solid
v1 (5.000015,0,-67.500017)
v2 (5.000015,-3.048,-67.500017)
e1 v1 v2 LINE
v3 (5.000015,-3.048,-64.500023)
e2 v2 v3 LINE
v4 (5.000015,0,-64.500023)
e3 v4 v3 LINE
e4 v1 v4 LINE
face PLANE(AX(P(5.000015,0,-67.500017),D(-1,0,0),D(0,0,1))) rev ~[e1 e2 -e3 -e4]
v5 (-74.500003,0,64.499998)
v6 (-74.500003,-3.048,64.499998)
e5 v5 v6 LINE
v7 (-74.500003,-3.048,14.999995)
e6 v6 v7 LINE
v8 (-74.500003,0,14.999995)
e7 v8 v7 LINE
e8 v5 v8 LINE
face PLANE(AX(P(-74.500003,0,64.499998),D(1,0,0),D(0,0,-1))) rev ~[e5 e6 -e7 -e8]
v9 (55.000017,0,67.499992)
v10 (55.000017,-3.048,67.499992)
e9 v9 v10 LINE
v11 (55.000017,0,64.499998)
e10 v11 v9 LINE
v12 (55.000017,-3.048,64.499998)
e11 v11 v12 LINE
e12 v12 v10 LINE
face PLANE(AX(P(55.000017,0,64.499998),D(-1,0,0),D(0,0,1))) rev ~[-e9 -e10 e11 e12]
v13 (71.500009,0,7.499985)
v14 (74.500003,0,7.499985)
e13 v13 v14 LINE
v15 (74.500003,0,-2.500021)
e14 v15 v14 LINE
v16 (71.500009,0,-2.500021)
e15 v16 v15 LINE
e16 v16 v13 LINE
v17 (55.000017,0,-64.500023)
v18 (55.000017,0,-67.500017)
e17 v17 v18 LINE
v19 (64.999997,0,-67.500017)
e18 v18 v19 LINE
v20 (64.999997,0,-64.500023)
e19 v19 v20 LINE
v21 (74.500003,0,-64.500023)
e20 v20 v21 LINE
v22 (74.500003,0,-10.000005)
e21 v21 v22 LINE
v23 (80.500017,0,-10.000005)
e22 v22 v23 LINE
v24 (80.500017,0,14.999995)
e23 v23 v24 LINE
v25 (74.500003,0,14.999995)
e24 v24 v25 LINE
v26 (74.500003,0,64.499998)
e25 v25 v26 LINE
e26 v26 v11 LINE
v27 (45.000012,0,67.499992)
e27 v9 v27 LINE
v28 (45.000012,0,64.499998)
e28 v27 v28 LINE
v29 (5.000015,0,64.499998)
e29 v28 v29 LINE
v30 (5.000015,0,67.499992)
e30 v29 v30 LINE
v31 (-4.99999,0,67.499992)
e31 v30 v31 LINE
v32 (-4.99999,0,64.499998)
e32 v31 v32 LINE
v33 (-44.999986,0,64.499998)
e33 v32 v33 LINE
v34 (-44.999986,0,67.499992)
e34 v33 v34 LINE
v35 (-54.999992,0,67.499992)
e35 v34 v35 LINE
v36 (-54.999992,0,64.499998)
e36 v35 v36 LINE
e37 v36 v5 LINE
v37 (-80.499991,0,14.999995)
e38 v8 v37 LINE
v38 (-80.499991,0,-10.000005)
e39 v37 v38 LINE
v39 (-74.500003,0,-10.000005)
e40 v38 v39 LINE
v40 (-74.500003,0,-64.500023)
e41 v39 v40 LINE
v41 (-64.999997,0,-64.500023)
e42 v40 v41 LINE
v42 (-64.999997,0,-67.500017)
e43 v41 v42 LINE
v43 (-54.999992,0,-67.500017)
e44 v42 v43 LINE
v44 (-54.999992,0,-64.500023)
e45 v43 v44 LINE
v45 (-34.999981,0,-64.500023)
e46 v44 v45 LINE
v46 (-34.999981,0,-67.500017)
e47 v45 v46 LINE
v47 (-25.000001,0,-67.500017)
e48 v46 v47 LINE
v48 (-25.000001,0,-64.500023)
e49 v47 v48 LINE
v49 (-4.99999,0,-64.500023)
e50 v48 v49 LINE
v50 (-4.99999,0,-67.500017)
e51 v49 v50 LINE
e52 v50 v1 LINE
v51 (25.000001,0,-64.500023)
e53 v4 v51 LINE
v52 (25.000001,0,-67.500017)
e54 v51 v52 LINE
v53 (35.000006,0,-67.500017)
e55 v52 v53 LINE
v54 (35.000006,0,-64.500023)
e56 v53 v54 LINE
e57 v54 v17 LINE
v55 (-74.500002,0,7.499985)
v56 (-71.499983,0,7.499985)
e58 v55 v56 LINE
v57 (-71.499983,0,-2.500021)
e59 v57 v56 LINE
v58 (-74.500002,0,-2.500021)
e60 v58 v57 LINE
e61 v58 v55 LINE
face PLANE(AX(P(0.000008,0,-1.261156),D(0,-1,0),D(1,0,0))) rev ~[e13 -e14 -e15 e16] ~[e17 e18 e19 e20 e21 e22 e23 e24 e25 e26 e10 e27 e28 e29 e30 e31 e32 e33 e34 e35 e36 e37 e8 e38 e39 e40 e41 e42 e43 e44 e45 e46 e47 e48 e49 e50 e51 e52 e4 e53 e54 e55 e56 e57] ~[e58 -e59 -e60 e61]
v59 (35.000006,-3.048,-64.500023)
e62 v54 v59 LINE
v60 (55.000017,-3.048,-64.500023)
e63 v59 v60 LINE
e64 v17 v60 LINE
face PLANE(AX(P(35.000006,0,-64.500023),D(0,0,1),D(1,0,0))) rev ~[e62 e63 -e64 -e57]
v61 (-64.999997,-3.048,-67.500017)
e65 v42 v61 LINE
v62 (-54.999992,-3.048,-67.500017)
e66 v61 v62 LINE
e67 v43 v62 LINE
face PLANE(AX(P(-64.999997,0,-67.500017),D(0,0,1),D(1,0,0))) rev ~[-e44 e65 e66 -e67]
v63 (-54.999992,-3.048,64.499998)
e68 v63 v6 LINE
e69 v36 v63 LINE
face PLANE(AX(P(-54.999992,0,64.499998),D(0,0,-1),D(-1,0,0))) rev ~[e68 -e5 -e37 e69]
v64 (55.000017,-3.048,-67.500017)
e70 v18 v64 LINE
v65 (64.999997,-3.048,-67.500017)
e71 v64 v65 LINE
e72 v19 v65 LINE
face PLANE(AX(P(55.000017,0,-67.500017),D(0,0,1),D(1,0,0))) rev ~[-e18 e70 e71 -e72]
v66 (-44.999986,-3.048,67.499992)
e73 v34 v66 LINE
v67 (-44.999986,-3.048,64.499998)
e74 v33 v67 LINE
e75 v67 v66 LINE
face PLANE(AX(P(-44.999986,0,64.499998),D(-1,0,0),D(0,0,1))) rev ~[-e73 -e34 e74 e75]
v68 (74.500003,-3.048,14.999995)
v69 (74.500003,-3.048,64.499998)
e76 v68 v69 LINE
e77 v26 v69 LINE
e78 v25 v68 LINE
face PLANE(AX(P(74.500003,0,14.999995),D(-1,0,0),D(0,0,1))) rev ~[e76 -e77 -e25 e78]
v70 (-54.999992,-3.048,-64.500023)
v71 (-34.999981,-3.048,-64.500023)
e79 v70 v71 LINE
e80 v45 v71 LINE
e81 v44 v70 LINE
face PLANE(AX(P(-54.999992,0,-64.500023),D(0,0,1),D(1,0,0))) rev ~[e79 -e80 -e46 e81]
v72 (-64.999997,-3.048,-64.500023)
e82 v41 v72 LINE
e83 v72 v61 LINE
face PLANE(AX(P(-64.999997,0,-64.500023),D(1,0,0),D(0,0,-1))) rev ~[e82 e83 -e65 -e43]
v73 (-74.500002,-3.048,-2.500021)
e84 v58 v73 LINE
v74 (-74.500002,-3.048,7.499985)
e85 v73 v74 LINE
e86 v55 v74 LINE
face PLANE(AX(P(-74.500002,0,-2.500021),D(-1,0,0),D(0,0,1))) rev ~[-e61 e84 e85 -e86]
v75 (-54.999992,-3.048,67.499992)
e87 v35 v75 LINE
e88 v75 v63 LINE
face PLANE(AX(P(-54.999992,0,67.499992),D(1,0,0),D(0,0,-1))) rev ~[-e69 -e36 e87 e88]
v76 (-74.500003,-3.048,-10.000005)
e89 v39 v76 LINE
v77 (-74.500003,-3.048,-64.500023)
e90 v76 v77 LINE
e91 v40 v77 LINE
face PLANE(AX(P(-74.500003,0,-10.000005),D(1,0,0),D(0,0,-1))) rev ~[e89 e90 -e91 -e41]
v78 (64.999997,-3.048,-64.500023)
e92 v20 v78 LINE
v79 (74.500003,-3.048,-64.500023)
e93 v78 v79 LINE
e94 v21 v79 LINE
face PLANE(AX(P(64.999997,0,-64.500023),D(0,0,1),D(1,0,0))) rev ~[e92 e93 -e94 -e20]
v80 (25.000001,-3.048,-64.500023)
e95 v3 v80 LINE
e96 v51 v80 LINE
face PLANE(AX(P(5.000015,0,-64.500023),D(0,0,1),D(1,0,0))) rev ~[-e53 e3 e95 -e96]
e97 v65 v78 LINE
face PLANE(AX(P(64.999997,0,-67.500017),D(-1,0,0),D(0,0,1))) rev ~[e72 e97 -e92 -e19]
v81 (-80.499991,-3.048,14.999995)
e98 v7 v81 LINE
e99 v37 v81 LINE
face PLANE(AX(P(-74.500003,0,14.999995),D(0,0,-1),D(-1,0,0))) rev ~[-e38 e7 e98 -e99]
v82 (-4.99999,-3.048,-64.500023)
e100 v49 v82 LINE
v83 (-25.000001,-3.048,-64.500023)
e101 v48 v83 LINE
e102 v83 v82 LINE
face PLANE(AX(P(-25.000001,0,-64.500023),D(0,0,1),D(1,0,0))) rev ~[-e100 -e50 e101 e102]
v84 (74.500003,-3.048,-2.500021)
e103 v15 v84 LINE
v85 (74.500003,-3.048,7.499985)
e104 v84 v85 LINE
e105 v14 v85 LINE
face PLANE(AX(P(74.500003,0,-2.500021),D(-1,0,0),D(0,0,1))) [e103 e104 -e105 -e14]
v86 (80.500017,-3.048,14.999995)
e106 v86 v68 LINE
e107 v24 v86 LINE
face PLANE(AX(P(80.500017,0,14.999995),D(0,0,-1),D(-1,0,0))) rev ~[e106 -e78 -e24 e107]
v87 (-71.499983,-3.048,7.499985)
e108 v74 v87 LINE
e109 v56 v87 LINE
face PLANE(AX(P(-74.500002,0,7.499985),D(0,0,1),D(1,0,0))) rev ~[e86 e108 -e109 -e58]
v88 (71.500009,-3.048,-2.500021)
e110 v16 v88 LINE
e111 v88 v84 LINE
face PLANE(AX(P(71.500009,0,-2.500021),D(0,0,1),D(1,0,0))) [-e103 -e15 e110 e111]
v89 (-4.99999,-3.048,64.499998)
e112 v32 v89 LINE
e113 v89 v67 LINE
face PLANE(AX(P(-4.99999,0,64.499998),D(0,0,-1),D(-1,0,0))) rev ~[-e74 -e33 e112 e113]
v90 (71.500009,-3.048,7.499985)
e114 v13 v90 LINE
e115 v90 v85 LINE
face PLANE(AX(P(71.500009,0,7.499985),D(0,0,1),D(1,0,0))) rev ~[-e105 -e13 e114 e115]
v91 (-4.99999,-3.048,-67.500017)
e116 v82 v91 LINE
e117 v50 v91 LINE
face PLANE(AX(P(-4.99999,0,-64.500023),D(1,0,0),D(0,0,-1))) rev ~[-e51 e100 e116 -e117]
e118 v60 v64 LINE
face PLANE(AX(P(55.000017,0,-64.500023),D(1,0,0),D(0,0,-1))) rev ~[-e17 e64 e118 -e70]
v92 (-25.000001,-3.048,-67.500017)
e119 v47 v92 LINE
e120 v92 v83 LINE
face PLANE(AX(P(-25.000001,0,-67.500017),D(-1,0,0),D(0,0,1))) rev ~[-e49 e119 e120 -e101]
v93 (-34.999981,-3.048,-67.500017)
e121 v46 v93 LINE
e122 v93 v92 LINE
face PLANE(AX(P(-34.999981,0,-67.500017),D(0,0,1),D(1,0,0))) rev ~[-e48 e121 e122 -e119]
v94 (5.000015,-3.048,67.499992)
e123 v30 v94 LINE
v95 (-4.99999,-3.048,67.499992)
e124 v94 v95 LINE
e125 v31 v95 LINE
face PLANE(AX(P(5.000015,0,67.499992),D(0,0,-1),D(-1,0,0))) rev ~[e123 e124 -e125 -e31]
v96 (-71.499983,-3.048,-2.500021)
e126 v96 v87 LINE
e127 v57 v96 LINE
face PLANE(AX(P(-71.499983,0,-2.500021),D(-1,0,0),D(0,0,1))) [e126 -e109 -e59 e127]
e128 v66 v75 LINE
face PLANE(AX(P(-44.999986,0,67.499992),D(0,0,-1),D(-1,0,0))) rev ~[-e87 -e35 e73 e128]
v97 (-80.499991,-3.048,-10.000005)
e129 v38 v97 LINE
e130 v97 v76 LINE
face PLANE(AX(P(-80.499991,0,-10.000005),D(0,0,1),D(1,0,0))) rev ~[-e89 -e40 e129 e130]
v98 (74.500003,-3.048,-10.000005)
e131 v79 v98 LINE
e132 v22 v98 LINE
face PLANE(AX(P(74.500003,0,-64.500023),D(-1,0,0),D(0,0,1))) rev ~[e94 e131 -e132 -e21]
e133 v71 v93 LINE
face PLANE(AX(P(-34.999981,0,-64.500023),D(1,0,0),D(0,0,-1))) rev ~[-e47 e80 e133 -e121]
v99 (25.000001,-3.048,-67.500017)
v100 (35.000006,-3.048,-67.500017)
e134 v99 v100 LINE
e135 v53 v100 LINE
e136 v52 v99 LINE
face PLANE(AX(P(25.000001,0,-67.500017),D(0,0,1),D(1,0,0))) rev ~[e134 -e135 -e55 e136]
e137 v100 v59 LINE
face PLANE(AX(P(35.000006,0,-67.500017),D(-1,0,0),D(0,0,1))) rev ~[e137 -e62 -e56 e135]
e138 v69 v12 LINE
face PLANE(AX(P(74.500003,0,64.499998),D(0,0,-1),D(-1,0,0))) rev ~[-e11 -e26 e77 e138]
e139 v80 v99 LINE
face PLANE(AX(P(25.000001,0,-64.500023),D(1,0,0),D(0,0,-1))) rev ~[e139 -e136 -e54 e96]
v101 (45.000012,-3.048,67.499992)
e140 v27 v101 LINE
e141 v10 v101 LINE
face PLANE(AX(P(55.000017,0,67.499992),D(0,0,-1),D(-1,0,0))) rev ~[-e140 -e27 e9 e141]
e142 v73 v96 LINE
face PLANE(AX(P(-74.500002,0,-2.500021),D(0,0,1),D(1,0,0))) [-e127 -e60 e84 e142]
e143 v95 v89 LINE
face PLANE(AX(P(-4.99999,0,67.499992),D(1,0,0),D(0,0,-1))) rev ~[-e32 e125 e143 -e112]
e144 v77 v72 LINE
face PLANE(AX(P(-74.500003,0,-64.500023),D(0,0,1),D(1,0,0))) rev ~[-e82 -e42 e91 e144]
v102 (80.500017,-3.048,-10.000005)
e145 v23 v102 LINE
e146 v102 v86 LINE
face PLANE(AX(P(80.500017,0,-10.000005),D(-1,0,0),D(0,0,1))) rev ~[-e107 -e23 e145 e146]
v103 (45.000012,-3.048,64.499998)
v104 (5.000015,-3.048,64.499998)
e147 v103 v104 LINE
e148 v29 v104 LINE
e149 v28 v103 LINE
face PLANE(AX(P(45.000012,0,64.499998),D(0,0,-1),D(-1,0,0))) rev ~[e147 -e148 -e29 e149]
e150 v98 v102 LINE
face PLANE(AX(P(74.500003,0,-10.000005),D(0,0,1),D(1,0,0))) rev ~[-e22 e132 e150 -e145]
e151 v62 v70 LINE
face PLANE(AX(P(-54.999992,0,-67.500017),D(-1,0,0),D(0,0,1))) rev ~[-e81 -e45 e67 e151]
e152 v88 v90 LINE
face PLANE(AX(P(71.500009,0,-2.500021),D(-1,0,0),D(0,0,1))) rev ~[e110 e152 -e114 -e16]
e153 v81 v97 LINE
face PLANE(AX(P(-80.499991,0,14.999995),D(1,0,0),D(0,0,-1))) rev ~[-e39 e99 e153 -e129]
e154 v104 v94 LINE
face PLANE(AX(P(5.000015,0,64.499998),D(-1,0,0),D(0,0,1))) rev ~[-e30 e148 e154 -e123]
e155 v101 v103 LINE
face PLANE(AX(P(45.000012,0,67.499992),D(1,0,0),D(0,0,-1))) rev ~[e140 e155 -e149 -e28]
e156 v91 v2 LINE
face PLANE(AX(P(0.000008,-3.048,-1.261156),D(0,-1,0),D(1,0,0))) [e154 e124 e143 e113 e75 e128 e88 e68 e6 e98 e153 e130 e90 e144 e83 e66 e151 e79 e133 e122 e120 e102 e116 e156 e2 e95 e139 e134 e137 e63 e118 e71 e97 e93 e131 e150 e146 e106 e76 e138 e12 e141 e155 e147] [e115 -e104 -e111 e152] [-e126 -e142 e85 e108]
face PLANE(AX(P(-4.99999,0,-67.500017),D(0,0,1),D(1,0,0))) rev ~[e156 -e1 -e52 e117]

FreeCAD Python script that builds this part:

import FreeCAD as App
import Part
import Sketcher
Q = App.Units.Quantity

doc = App.newDocument("Part")
body = doc.addObject("PartDesign::Body", "Body")

sketch1 = doc.addObject("Sketcher::SketchObject", "Sketch")
body.addObject(sketch1)
sketch1.AttachmentSupport = (doc.XZ_Plane, [""])
sketch1.MapMode = "FlatFace"
sketch1.addGeometry([
    Part.LineSegment(App.Vector(-74.5, 64.5, 0), App.Vector(-74.5, 15, 0)),
    Part.LineSegment(App.Vector(-74.5, 15, 0), App.Vector(-80.5, 15, 0)),
    Part.LineSegment(App.Vector(-80.5, 15, 0), App.Vector(-80.5, -10, 0)),
    Part.LineSegment(App.Vector(-80.5, -10, 0), App.Vector(-74.5, -10, 0)),
    Part.LineSegment(App.Vector(-74.5, -10, 0), App.Vector(-74.5, -64.5, 0)),
    Part.LineSegment(App.Vector(-74.5, -64.5, 0), App.Vector(-65, -64.5, 0)),
    Part.LineSegment(App.Vector(-65, -64.5, 0), App.Vector(-65, -67.5, 0)),
    Part.LineSegment(App.Vector(-65, -67.5, 0), App.Vector(-55, -67.5, 0)),
    Part.LineSegment(App.Vector(-55, -67.5, 0), App.Vector(-55, -64.5, 0)),
    Part.LineSegment(App.Vector(-55, -64.5, 0), App.Vector(-35, -64.5, 0)),
    Part.LineSegment(App.Vector(-35, -64.5, 0), App.Vector(-35, -67.5, 0)),
    Part.LineSegment(App.Vector(-35, -67.5, 0), App.Vector(-25, -67.5, 0)),
    Part.LineSegment(App.Vector(-25, -67.5, 0), App.Vector(-25, -64.5, 0)),
    Part.LineSegment(App.Vector(-25, -64.5, 0), App.Vector(-5, -64.5, 0)),
    Part.LineSegment(App.Vector(-5, -64.5, 0), App.Vector(-5, -67.5, 0)),
    Part.LineSegment(App.Vector(-5, -67.5, 0), App.Vector(5, -67.5, 0)),
    Part.LineSegment(App.Vector(5, -67.5, 0), App.Vector(5, -64.5, 0)),
    Part.LineSegment(App.Vector(5, -64.5, 0), App.Vector(25, -64.5, 0)),
    Part.LineSegment(App.Vector(25, -64.5, 0), App.Vector(25, -67.5, 0)),
    Part.LineSegment(App.Vector(25, -67.5, 0), App.Vector(35, -67.5, 0)),
    Part.LineSegment(App.Vector(35, -67.5, 0), App.Vector(35, -64.5, 0)),
    Part.LineSegment(App.Vector(35, -64.5, 0), App.Vector(55, -64.5, 0)),
    Part.LineSegment(App.Vector(55, -64.5, 0), App.Vector(55, -67.5, 0)),
    Part.LineSegment(App.Vector(55, -67.5, 0), App.Vector(65, -67.5, 0)),
    Part.LineSegment(App.Vector(65, -67.5, 0), App.Vector(65, -64.5, 0)),
    Part.LineSegment(App.Vector(65, -64.5, 0), App.Vector(74.5, -64.5, 0)),
    Part.LineSegment(App.Vector(74.5, -64.5, 0), App.Vector(74.5, -10, 0)),
    Part.LineSegment(App.Vector(74.5, -10, 0), App.Vector(80.5, -10, 0)),
    Part.LineSegment(App.Vector(80.5, -10, 0), App.Vector(80.5, 15, 0)),
    Part.LineSegment(App.Vector(80.5, 15, 0), App.Vector(74.5, 15, 0)),
    Part.LineSegment(App.Vector(74.5, 15, 0), App.Vector(74.5, 64.5, 0)),
    Part.LineSegment(App.Vector(74.5, 64.5, 0), App.Vector(55, 64.5, 0)),
    Part.LineSegment(App.Vector(55, 64.5, 0), App.Vector(55, 67.5, 0)),
    Part.LineSegment(App.Vector(55, 67.5, 0), App.Vector(45, 67.5, 0)),
    Part.LineSegment(App.Vector(45, 67.5, 0), App.Vector(45, 64.5, 0)),
    Part.LineSegment(App.Vector(45, 64.5, 0), App.Vector(5, 64.5, 0)),
    Part.LineSegment(App.Vector(5, 64.5, 0), App.Vector(5, 67.5, 0)),
    Part.LineSegment(App.Vector(5, 67.5, 0), App.Vector(-5, 67.5, 0)),
    Part.LineSegment(App.Vector(-5, 67.5, 0), App.Vector(-5, 64.5, 0)),
    Part.LineSegment(App.Vector(-5, 64.5, 0), App.Vector(-45, 64.5, 0)),
    Part.LineSegment(App.Vector(-45, 64.5, 0), App.Vector(-45, 67.5, 0)),
    Part.LineSegment(App.Vector(-45, 67.5, 0), App.Vector(-55, 67.5, 0)),
    Part.LineSegment(App.Vector(-55, 67.5, 0), App.Vector(-55, 64.5, 0)),
    Part.LineSegment(App.Vector(-55, 64.5, 0), App.Vector(-74.5, 64.5, 0)),
    Part.LineSegment(App.Vector(-71.5, -2.5, 0), App.Vector(-74.5, -2.5, 0)),
    Part.LineSegment(App.Vector(-74.5, -2.5, 0), App.Vector(-74.5, 7.5, 0)),
    Part.LineSegment(App.Vector(-74.5, 7.5, 0), App.Vector(-71.5, 7.5, 0)),
    Part.LineSegment(App.Vector(-71.5, 7.5, 0), App.Vector(-71.5, -2.5, 0)),
    Part.LineSegment(App.Vector(74.5, -2.5, 0), App.Vector(71.5, -2.5, 0)),
    Part.LineSegment(App.Vector(71.5, -2.5, 0), App.Vector(71.5, 7.5, 0)),
    Part.LineSegment(App.Vector(71.5, 7.5, 0), App.Vector(74.5, 7.5, 0)),
    Part.LineSegment(App.Vector(74.5, 7.5, 0), App.Vector(74.5, -2.5, 0)),
], False)
sketch1.addConstraint([
    Sketcher.Constraint("Coincident", 0, 2, 1, 1),
    Sketcher.Constraint("Coincident", 1, 2, 2, 1),
    Sketcher.Constraint("Coincident", 2, 2, 3, 1),
    Sketcher.Constraint("Coincident", 3, 2, 4, 1),
    Sketcher.Constraint("Coincident", 4, 2, 5, 1),
    Sketcher.Constraint("Coincident", 5, 2, 6, 1),
    Sketcher.Constraint("Coincident", 6, 2, 7, 1),
    Sketcher.Constraint("Coincident", 7, 2, 8, 1),
    Sketcher.Constraint("Coincident", 8, 2, 9, 1),
    Sketcher.Constraint("Coincident", 9, 2, 10, 1),
    Sketcher.Constraint("Coincident", 10, 2, 11, 1),
    Sketcher.Constraint("Coincident", 11, 2, 12, 1),
    Sketcher.Constraint("Coincident", 12, 2, 13, 1),
    Sketcher.Constraint("Coincident", 13, 2, 14, 1),
    Sketcher.Constraint("Coincident", 14, 2, 15, 1),
    Sketcher.Constraint("Coincident", 15, 2, 16, 1),
    Sketcher.Constraint("Coincident", 16, 2, 17, 1),
    Sketcher.Constraint("Coincident", 17, 2, 18, 1),
    Sketcher.Constraint("Coincident", 18, 2, 19, 1),
    Sketcher.Constraint("Coincident", 19, 2, 20, 1),
    Sketcher.Constraint("Coincident", 20, 2, 21, 1),
    Sketcher.Constraint("Coincident", 21, 2, 22, 1),
    Sketcher.Constraint("Coincident", 22, 2, 23, 1),
    Sketcher.Constraint("Coincident", 23, 2, 24, 1),
    Sketcher.Constraint("Coincident", 24, 2, 25, 1),
    Sketcher.Constraint("Coincident", 25, 2, 26, 1),
    Sketcher.Constraint("Coincident", 26, 2, 27, 1),
    Sketcher.Constraint("Coincident", 27, 2, 28, 1),
    Sketcher.Constraint("Coincident", 28, 2, 29, 1),
    Sketcher.Constraint("Coincident", 29, 2, 30, 1),
    Sketcher.Constraint("Coincident", 30, 2, 31, 1),
    Sketcher.Constraint("Coincident", 31, 2, 32, 1),
    Sketcher.Constraint("Coincident", 32, 2, 33, 1),
    Sketcher.Constraint("Coincident", 33, 2, 34, 1),
    Sketcher.Constraint("Coincident", 34, 2, 35, 1),
    Sketcher.Constraint("Coincident", 35, 2, 36, 1),
    Sketcher.Constraint("Coincident", 36, 2, 37, 1),
    Sketcher.Constraint("Coincident", 37, 2, 38, 1),
    Sketcher.Constraint("Coincident", 38, 2, 39, 1),
    Sketcher.Constraint("Coincident", 39, 2, 40, 1),
    Sketcher.Constraint("Coincident", 40, 2, 41, 1),
    Sketcher.Constraint("Coincident", 41, 2, 42, 1),
    Sketcher.Constraint("Coincident", 42, 2, 43, 1),
    Sketcher.Constraint("Coincident", 43, 2, 0, 1),
    Sketcher.Constraint("Coincident", 44, 2, 45, 1),
    Sketcher.Constraint("Coincident", 45, 2, 46, 1),
    Sketcher.Constraint("Coincident", 46, 2, 47, 1),
    Sketcher.Constraint("Coincident", 47, 2, 44, 1),
    Sketcher.Constraint("Coincident", 48, 2, 49, 1),
    Sketcher.Constraint("Coincident", 49, 2, 50, 1),
    Sketcher.Constraint("Coincident", 50, 2, 51, 1),
    Sketcher.Constraint("Coincident", 51, 2, 48, 1),
    Sketcher.Constraint("Vertical", 0),
    Sketcher.Constraint("Horizontal", 1),
    Sketcher.Constraint("Vertical", 2),
    Sketcher.Constraint("Horizontal", 3),
    Sketcher.Constraint("Vertical", 4),
    Sketcher.Constraint("Horizontal", 5),
    Sketcher.Constraint("Vertical", 6),
    Sketcher.Constraint("Horizontal", 7),
    Sketcher.Constraint("Vertical", 8),
    Sketcher.Constraint("Horizontal", 9),
    Sketcher.Constraint("Vertical", 10),
    Sketcher.Constraint("Horizontal", 11),
    Sketcher.Constraint("Vertical", 12),
    Sketcher.Constraint("Horizontal", 13),
    Sketcher.Constraint("Vertical", 14),
    Sketcher.Constraint("Horizontal", 15),
    Sketcher.Constraint("Vertical", 16),
    Sketcher.Constraint("Horizontal", 17),
    Sketcher.Constraint("Vertical", 18),
    Sketcher.Constraint("Horizontal", 19),
    Sketcher.Constraint("Vertical", 20),
    Sketcher.Constraint("Horizontal", 21),
    Sketcher.Constraint("Vertical", 22),
    Sketcher.Constraint("Horizontal", 23),
    Sketcher.Constraint("Vertical", 24),
    Sketcher.Constraint("Horizontal", 25),
    Sketcher.Constraint("Vertical", 26),
    Sketcher.Constraint("Horizontal", 27),
    Sketcher.Constraint("Vertical", 28),
    Sketcher.Constraint("Horizontal", 29),
    Sketcher.Constraint("Vertical", 30),
    Sketcher.Constraint("Horizontal", 31),
    Sketcher.Constraint("Vertical", 32),
    Sketcher.Constraint("Horizontal", 33),
    Sketcher.Constraint("Vertical", 34),
    Sketcher.Constraint("Horizontal", 35),
    Sketcher.Constraint("Vertical", 36),
    Sketcher.Constraint("Horizontal", 37),
    Sketcher.Constraint("Vertical", 38),
    Sketcher.Constraint("Horizontal", 39),
    Sketcher.Constraint("Vertical", 40),
    Sketcher.Constraint("Horizontal", 41),
    Sketcher.Constraint("Vertical", 42),
    Sketcher.Constraint("Horizontal", 43),
    Sketcher.Constraint("Horizontal", 44),
    Sketcher.Constraint("Vertical", 45),
    Sketcher.Constraint("Horizontal", 46),
    Sketcher.Constraint("Vertical", 47),
    Sketcher.Constraint("Horizontal", 48),
    Sketcher.Constraint("Vertical", 49),
    Sketcher.Constraint("Horizontal", 50),
    Sketcher.Constraint("Vertical", 51),
    Sketcher.Constraint("Symmetric", 12, 2, 17, 2, -2),
    Sketcher.Constraint("Symmetric", 6, 2, 23, 2, -2),
    Sketcher.Constraint("Symmetric", 4, 2, 25, 2, -2),
    Sketcher.Constraint("Symmetric", 0, 2, 29, 2, -2),
    Sketcher.Constraint("Symmetric", 45, 2, 50, 2, -2),
    Sketcher.Constraint("Horizontal", 5, 2, 8, 2),
    Sketcher.Constraint("Horizontal", 7, 2, 10, 2),
    Sketcher.Constraint("Horizontal", 9, 2, 12, 2),
    Sketcher.Constraint("Horizontal", 11, 2, 14, 2),
    Sketcher.Constraint("Horizontal", 15, 2, 18, 2),
    Sketcher.Constraint("Horizontal", 17, 2, 20, 2),
    Sketcher.Constraint("Horizontal", 3, 2, 26, 2),
    Sketcher.Constraint("Horizontal", 31, 2, 34, 2),
    Sketcher.Constraint("Horizontal", 33, 2, 36, 2),
    Sketcher.Constraint("Horizontal", 35, 2, 38, 2),
    Sketcher.Constraint("Horizontal", 37, 2, 40, 2),
    Sketcher.Constraint("Horizontal", 39, 2, 42, 2),
    Sketcher.Constraint("Horizontal", 47, 2, 48, 2),
    Sketcher.Constraint("Vertical", 0, 2, 3, 2),
    Sketcher.Constraint("Vertical", 22, 2, 31, 2),
    Sketcher.Constraint("Vertical", 16, 2, 35, 2),
    Sketcher.Constraint("Vertical", 14, 2, 37, 2),
    Sketcher.Constraint("Vertical", 8, 2, 41, 2),
    Sketcher.Constraint("Vertical", 43, 2, 44, 2),
    Sketcher.Constraint("Equal", 9, 13),
    Sketcher.Constraint("Equal", 7, 15),
    Sketcher.Constraint("Equal", 15, 19),
    Sketcher.Constraint("Equal", 13, 21),
    Sketcher.Constraint("Equal", 19, 33),
    Sketcher.Constraint("Equal", 35, 39),
    Sketcher.Constraint("Equal", 37, 41),
    Sketcher.Constraint("Equal", 50, 6),
    Sketcher.Constraint("Equal", 24, 32),
    Sketcher.Constraint("Equal", 41, 45),
    Sketcher.Constraint("DistanceY", 2, 2, 2, 1, Q("25 mm")),
    Sketcher.Constraint("DistanceX", 11, 2, -1, 1, Q("25.000001 mm")),
    Sketcher.Constraint("DistanceY", -1, 1, 30, 2, Q("64.499998 mm")),
    Sketcher.Constraint("DistanceX", 2, 2, 7, 2, Q("25.499999 mm")),
    Sketcher.Constraint("DistanceX", 21, 2, 27, 2, Q("25.5 mm")),
    Sketcher.Constraint("DistanceX", 9, 1, 9, 2, Q("20.000011 mm")),
    Sketcher.Constraint("DistanceX", 43, 2, 43, 1, Q("19.500011 mm")),
    Sketcher.Constraint("DistanceX", 44, 2, 44, 1, Q("3.000019 mm")),
    Sketcher.Constraint("DistanceX", 5, 1, 5, 2, Q("9.500006 mm")),
    Sketcher.Constraint("DistanceX", 48, 2, 48, 1, Q("2.999994 mm")),
    Sketcher.Constraint("DistanceY", 0, 2, 0, 1, Q("49.500003 mm")),
    Sketcher.Constraint("DistanceY", 4, 2, 4, 1, Q("54.500018 mm")),
    Sketcher.Constraint("DistanceY", 44, 2, -1, 1, Q("2.500021 mm")),
])
pad1 = doc.addObject("PartDesign::Pad", "Pad")
body.addObject(pad1)
pad1.Profile = sketch1
pad1.Length = 3.048

doc.recompute()
